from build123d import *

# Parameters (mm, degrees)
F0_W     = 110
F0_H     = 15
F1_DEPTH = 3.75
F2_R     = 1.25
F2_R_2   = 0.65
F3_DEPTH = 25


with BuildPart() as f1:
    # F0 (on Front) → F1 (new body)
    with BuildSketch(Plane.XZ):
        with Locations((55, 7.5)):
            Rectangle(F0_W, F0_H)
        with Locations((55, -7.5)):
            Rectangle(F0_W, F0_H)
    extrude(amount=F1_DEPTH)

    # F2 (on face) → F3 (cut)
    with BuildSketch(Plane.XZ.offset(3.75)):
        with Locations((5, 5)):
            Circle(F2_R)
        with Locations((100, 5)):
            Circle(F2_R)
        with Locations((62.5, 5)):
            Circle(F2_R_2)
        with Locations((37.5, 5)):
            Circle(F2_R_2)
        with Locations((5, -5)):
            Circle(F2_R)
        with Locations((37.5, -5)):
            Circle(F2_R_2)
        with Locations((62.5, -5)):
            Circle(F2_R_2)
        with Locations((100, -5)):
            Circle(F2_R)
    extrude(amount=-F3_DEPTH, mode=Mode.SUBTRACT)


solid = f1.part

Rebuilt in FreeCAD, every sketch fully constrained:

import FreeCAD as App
import Part
import Sketcher
from FreeCAD import Vector

doc = App.newDocument("Part")
body = doc.addObject("PartDesign::Body", "Body")

# Sketch on XZ plane
sketch1 = body.newObject("Sketcher::SketchObject", "Sketch")
sketch1.AttachmentSupport = (doc.getObject("XZ_Plane"), [""])
sketch1.MapMode = "FlatFace"
sketch1.addGeometry(Part.LineSegment(Vector(0, 15, 0), Vector(0, -15, 0)), False)
sketch1.addGeometry(Part.LineSegment(Vector(0, -15, 0), Vector(110, -15, 0)), False)
sketch1.addGeometry(Part.LineSegment(Vector(110, -15, 0), Vector(110, 15, 0)), False)
sketch1.addGeometry(Part.LineSegment(Vector(110, 15, 0), Vector(0, 15, 0)), False)
sketch1.addConstraint(Sketcher.Constraint("Coincident", 0, 2, 1, 1))
sketch1.addConstraint(Sketcher.Constraint("Coincident", 1, 2, 2, 1))
sketch1.addConstraint(Sketcher.Constraint("Coincident", 2, 2, 3, 1))
sketch1.addConstraint(Sketcher.Constraint("Coincident", 3, 2, 0, 1))
sketch1.addConstraint(Sketcher.Constraint("Vertical", 0))
sketch1.addConstraint(Sketcher.Constraint("Horizontal", 1))
sketch1.addConstraint(Sketcher.Constraint("Vertical", 2))
sketch1.addConstraint(Sketcher.Constraint("Horizontal", 3))
sketch1.addConstraint(Sketcher.Constraint("Symmetric", 0, 2, 3, 2, -1, 1))
sketch1.addConstraint(Sketcher.Constraint("DistanceX", 1, 1, 1, 2, 110.0))
sketch1.addConstraint(Sketcher.Constraint("DistanceY", 0, 2, 0, 1, 30.0))
pad1 = body.newObject("PartDesign::Pad", "Pad")
pad1.Profile = sketch1
pad1.Length = 3.75

# Sketch on XZ plane
sketch2 = body.newObject("Sketcher::SketchObject", "Sketch001")
sketch2.AttachmentSupport = (doc.getObject("XZ_Plane"), [""])
sketch2.MapMode = "FlatFace"
sketch2.AttachmentOffset = App.Placement(Vector(0, 0, 3.75), App.Rotation())
sketch2.addGeometry(Part.Circle(Vector(5, 5, 0), Vector(0, 0, 1), 1.2), False)
sketch2.addGeometry(Part.Circle(Vector(100, 5, 0), Vector(0, 0, 1), 1.2), False)
sketch2.addGeometry(Part.Circle(Vector(62.5, 5, 0), Vector(0, 0, 1), 0.7), False)
sketch2.addGeometry(Part.Circle(Vector(37.5, 5, 0), Vector(0, 0, 1), 0.7), False)
sketch2.addGeometry(Part.Circle(Vector(5, -5, 0), Vector(0, 0, 1), 1.2), False)
sketch2.addGeometry(Part.Circle(Vector(37.5, -5, 0), Vector(0, 0, 1), 0.7), False)
sketch2.addGeometry(Part.Circle(Vector(62.5, -5, 0), Vector(0, 0, 1), 0.7), False)
sketch2.addGeometry(Part.Circle(Vector(100, -5, 0), Vector(0, 0, 1), 1.2), False)
sketch2.addConstraint(Sketcher.Constraint("Equal", 0, 1))
sketch2.addConstraint(Sketcher.Constraint("Equal", 2, 3))
sketch2.addConstraint(Sketcher.Constraint("Equal", 1, 4))
sketch2.addConstraint(Sketcher.Constraint("Equal", 3, 5))
sketch2.addConstraint(Sketcher.Constraint("Equal", 5, 6))
sketch2.addConstraint(Sketcher.Constraint("Equal", 4, 7))
sketch2.addConstraint(Sketcher.Constraint("Symmetric", 0, 3, 4, 3, -1))
sketch2.addConstraint(Sketcher.Constraint("Symmetric", 3, 3, 5, 3, -1))
sketch2.addConstraint(Sketcher.Constraint("Symmetric", 2, 3, 6, 3, -1))
sketch2.addConstraint(Sketcher.Constraint("Symmetric", 1, 3, 7, 3, -1))
sketch2.addConstraint(Sketcher.Constraint("Horizontal", 0, 3, 1, 3))
sketch2.addConstraint(Sketcher.Constraint("Horizontal", 1, 3, 2, 3))
sketch2.addConstraint(Sketcher.Constraint("Horizontal", 2, 3, 3, 3))
sketch2.addConstraint(Sketcher.Constraint("Diameter", 0, 2.5))
sketch2.addConstraint(Sketcher.Constraint("Diameter", 2, 1.3))
sketch2.addConstraint(Sketcher.Constraint("DistanceX", -1, 1, 0, 3, 5.0))
sketch2.addConstraint(Sketcher.Constraint("DistanceY", -1, 1, 0, 3, 5.0))
sketch2.addConstraint(Sketcher.Constraint("DistanceX", -1, 1, 1, 3, 100.0))
sketch2.addConstraint(Sketcher.Constraint("DistanceX", 3, 3, 2, 3, 25.0))
sketch2.addConstraint(Sketcher.Constraint("DistanceX", -1, 1, 2, 3, 62.5))
pocket1 = body.newObject("PartDesign::Pocket", "Pocket")
pocket1.Profile = sketch2
pocket1.Length = 25

doc.recompute()
